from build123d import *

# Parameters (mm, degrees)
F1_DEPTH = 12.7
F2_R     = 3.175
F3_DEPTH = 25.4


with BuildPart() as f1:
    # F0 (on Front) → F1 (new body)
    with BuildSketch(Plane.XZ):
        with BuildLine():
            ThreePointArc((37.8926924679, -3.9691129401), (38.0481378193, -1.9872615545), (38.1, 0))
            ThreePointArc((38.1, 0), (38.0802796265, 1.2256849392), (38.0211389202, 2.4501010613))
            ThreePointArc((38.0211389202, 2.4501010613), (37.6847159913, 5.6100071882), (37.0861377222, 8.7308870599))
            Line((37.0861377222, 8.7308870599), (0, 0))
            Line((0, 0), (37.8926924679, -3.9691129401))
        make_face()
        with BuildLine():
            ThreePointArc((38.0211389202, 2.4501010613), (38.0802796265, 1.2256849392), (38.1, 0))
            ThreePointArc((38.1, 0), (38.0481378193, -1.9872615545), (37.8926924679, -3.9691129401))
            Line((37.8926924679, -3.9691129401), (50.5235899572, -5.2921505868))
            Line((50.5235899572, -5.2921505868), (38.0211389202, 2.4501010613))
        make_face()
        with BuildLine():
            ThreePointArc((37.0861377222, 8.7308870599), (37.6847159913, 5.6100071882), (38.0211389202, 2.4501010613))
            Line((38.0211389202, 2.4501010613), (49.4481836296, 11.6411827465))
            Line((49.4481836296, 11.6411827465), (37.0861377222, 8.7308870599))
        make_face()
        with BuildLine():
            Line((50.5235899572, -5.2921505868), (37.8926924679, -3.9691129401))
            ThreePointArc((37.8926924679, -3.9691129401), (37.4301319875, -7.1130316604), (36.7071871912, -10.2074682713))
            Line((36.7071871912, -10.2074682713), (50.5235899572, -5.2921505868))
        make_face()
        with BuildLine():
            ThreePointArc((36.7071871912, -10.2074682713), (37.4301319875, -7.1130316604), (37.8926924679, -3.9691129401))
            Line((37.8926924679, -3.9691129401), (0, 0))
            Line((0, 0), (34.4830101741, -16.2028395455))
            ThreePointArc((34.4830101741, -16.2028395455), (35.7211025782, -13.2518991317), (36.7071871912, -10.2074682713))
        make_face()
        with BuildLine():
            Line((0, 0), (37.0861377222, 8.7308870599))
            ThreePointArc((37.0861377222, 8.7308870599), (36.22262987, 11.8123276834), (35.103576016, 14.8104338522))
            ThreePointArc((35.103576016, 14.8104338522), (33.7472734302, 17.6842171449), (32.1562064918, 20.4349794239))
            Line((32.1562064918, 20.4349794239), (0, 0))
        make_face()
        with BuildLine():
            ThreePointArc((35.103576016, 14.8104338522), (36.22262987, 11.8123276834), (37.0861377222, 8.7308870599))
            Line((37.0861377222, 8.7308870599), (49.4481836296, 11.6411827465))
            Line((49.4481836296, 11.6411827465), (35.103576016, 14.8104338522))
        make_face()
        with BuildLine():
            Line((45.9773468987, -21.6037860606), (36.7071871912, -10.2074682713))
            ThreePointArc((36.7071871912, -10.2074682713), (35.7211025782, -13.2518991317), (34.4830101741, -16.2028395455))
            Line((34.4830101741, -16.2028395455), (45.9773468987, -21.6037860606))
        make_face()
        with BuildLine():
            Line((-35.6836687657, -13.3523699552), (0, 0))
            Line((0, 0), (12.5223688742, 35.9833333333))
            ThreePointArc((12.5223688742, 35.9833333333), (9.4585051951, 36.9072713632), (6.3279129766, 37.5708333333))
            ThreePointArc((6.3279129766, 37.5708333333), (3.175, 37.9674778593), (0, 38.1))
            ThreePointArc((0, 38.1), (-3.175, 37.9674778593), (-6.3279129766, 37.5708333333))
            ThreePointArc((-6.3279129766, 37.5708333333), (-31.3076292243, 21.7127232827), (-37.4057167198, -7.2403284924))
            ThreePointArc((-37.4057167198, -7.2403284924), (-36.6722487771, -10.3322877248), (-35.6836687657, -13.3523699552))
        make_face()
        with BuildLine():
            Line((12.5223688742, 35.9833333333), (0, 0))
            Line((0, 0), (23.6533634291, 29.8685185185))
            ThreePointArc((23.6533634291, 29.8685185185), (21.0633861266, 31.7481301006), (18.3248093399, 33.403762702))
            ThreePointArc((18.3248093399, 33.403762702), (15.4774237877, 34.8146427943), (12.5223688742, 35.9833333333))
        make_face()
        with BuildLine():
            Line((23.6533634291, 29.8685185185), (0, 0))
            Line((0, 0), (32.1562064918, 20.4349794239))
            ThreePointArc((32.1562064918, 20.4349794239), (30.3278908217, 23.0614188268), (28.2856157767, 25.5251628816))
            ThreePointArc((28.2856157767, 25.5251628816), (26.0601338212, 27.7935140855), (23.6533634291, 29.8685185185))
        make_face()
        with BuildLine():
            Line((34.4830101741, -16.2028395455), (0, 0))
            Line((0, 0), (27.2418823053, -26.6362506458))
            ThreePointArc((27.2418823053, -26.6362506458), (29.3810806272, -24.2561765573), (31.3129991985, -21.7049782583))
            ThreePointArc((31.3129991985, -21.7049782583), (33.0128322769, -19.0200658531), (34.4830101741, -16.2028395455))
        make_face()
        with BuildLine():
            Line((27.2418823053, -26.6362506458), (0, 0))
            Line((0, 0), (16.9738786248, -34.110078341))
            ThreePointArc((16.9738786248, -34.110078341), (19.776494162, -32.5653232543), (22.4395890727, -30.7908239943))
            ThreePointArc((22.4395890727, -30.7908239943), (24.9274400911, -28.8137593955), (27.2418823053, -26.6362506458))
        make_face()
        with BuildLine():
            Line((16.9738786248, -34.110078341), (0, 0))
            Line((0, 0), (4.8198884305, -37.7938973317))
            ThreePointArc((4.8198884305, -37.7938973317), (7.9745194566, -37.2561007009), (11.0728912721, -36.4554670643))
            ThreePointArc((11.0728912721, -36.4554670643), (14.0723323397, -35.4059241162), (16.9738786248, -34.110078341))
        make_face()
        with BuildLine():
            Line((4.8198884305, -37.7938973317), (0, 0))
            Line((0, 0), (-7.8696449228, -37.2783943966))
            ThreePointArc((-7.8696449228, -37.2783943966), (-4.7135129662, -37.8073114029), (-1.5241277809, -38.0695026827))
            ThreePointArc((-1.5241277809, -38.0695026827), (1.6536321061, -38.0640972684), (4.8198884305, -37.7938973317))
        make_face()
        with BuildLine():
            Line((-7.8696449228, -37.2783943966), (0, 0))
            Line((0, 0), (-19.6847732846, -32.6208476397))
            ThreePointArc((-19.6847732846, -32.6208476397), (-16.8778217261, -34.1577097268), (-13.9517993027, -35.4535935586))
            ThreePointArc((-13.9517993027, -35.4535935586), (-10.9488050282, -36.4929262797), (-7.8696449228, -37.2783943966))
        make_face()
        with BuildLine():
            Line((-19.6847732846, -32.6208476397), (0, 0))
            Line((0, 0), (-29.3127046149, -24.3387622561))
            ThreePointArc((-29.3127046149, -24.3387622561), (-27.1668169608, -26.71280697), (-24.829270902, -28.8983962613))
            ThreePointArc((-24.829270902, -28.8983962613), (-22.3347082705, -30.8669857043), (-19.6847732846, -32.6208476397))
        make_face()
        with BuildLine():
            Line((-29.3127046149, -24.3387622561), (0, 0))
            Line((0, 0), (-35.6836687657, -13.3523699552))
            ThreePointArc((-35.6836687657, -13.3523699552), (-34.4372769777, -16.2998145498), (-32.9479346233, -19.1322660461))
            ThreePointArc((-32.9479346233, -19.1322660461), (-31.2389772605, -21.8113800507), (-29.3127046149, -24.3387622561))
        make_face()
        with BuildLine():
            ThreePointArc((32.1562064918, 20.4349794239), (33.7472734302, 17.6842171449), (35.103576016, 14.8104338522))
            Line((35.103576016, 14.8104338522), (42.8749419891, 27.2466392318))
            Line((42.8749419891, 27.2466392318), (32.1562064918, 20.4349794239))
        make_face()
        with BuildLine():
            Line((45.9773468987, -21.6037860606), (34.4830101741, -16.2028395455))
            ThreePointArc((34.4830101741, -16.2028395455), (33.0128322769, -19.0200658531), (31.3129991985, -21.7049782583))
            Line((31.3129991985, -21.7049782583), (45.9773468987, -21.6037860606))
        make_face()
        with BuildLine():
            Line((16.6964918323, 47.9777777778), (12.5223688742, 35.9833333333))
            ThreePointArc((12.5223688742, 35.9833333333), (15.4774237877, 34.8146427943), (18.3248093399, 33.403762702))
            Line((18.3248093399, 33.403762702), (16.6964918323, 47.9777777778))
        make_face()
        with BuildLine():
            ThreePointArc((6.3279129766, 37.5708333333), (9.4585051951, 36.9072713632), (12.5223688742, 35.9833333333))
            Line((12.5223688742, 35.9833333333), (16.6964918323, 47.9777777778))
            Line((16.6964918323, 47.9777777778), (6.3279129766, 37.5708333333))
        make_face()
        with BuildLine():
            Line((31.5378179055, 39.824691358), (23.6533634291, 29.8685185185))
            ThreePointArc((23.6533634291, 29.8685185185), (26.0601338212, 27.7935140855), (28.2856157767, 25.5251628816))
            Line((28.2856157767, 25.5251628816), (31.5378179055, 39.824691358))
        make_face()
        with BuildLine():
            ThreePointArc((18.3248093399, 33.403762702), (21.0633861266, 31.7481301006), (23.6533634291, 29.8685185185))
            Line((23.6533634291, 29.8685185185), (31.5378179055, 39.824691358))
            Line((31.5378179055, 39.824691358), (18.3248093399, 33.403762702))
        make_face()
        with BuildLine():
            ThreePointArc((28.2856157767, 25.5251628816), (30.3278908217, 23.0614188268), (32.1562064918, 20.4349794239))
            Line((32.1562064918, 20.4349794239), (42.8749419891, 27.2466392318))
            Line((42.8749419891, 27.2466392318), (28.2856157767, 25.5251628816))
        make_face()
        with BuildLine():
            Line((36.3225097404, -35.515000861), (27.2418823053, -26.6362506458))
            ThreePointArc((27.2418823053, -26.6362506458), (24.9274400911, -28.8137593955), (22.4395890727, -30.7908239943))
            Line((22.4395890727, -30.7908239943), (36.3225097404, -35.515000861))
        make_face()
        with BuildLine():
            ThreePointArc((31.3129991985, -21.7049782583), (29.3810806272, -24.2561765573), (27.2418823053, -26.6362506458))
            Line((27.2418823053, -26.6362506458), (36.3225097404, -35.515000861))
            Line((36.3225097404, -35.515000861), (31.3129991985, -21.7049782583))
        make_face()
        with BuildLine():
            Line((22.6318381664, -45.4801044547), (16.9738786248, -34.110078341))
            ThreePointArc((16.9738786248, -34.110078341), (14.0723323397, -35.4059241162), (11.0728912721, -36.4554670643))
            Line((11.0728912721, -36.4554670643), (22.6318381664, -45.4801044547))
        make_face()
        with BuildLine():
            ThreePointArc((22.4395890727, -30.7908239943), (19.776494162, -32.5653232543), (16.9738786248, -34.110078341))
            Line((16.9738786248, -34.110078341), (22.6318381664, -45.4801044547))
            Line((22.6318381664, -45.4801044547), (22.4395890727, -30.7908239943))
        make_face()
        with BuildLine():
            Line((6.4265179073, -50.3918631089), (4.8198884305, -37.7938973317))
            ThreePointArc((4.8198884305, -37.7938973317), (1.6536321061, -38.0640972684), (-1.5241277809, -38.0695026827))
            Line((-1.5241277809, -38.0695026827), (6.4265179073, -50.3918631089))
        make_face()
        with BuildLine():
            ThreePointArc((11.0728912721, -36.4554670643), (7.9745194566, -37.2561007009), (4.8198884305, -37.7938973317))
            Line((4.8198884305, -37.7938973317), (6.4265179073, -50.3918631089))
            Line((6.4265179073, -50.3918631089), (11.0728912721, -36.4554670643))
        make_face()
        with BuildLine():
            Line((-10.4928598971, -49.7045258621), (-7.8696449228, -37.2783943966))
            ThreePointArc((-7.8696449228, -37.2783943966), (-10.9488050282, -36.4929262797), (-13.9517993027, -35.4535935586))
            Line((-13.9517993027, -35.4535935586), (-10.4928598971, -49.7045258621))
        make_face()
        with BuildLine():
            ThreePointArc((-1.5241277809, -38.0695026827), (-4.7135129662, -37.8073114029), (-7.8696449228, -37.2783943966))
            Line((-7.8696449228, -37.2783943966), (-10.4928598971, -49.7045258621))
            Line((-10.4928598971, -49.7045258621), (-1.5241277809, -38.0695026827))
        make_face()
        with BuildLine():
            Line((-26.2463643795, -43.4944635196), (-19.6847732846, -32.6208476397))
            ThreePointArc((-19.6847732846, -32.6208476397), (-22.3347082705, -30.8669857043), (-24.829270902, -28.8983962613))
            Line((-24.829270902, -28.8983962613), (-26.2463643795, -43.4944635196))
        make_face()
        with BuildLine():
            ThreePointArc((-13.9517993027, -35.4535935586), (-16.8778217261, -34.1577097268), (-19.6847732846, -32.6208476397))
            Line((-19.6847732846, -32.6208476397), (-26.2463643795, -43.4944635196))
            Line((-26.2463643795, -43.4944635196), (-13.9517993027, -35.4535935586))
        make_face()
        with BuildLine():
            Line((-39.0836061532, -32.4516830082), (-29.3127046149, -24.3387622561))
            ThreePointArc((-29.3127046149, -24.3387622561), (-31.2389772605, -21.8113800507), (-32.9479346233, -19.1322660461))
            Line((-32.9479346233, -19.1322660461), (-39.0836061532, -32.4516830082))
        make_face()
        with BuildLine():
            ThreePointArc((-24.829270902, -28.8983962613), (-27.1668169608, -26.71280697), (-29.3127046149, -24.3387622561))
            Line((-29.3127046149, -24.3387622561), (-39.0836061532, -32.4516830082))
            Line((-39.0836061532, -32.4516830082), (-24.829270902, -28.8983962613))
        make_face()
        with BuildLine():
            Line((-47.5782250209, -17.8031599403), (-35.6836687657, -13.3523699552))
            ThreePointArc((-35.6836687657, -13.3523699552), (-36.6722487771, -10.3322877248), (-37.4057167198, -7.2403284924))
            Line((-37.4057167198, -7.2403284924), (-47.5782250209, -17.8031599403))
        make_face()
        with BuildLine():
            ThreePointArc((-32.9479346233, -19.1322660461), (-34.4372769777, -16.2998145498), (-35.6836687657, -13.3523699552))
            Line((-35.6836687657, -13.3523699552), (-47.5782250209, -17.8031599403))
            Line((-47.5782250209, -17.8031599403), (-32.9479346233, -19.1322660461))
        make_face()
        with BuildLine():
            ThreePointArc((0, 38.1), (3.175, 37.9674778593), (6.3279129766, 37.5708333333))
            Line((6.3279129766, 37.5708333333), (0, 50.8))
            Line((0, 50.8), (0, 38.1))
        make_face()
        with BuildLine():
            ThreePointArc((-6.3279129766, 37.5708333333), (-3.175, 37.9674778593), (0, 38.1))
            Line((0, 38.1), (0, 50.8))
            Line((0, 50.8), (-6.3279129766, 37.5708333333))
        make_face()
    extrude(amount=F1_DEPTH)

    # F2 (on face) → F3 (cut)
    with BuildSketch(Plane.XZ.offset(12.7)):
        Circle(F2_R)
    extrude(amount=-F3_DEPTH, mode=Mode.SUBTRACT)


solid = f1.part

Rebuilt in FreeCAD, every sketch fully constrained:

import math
import FreeCAD as App
import Part
import Sketcher
Q = App.Units.Quantity

doc = App.newDocument("Part")
body = doc.addObject("PartDesign::Body", "Body")

# Sketch on XZ plane
sketch1 = body.newObject("Sketcher::SketchObject", "Sketch")
sketch1.AttachmentSupport = (doc.getObject("XZ_Plane"), [""])
sketch1.MapMode = "FlatFace"
sketch1.addGeometry([
    Part.LineSegment(App.Vector(45.977347, -21.603786, 0), App.Vector(36.707187, -10.207468, 0)),  # 0
    Part.LineSegment(App.Vector(36.707187, -10.207468, 0), App.Vector(50.52359, -5.292151, 0)),  # 1
    Part.LineSegment(App.Vector(50.52359, -5.292151, 0), App.Vector(38.021139, 2.450101, 0)),  # 2
    Part.LineSegment(App.Vector(38.021139, 2.450101, 0), App.Vector(49.448184, 11.641183, 0)),  # 3
    Part.LineSegment(App.Vector(49.448184, 11.641183, 0), App.Vector(35.103576, 14.810434, 0)),  # 4
    Part.LineSegment(App.Vector(35.103576, 14.810434, 0), App.Vector(42.874942, 27.246639, 0)),  # 5
    Part.LineSegment(App.Vector(42.874942, 27.246639, 0), App.Vector(28.285616, 25.525163, 0)),  # 6
    Part.LineSegment(App.Vector(28.285616, 25.525163, 0), App.Vector(31.537818, 39.824691, 0)),  # 7
    Part.LineSegment(App.Vector(31.537818, 39.824691, 0), App.Vector(18.324809, 33.403763, 0)),  # 8
    Part.LineSegment(App.Vector(18.324809, 33.403763, 0), App.Vector(16.696492, 47.977778, 0)),  # 9
    Part.LineSegment(App.Vector(16.696492, 47.977778, 0), App.Vector(6.327913, 37.570833, 0)),  # 10
    Part.LineSegment(App.Vector(6.327913, 37.570833, 0), App.Vector(0, 50.8, 0)),  # 11
    Part.LineSegment(App.Vector(0, 50.8, 0), App.Vector(-6.327913, 37.570833, 0)),  # 12
    Part.ArcOfCircle(Part.Circle(App.Vector(0, 0, 0), App.Vector(0, 0, 1), 38.1), math.radians(99.560384), math.radians(190.954819)),  # 13
    Part.LineSegment(App.Vector(-37.405717, -7.240328, 0), App.Vector(-47.578225, -17.80316, 0)),  # 14
    Part.LineSegment(App.Vector(-47.578225, -17.80316, 0), App.Vector(-32.947935, -19.132266, 0)),  # 15
    Part.LineSegment(App.Vector(-32.947935, -19.132266, 0), App.Vector(-39.083606, -32.451683, 0)),  # 16
    Part.LineSegment(App.Vector(-39.083606, -32.451683, 0), App.Vector(-24.829271, -28.898396, 0)),  # 17
    Part.LineSegment(App.Vector(-24.829271, -28.898396, 0), App.Vector(-26.246364, -43.494464, 0)),  # 18
    Part.LineSegment(App.Vector(-26.246364, -43.494464, 0), App.Vector(-13.951799, -35.453594, 0)),  # 19
    Part.LineSegment(App.Vector(-13.951799, -35.453594, 0), App.Vector(-10.49286, -49.704526, 0)),  # 20
    Part.LineSegment(App.Vector(-10.49286, -49.704526, 0), App.Vector(-1.524128, -38.069503, 0)),  # 21
    Part.LineSegment(App.Vector(-1.524128, -38.069503, 0), App.Vector(6.426518, -50.391863, 0)),  # 22
    Part.LineSegment(App.Vector(6.426518, -50.391863, 0), App.Vector(11.072891, -36.455467, 0)),  # 23
    Part.LineSegment(App.Vector(11.072891, -36.455467, 0), App.Vector(22.631838, -45.480104, 0)),  # 24
    Part.LineSegment(App.Vector(22.631838, -45.480104, 0), App.Vector(22.439589, -30.790824, 0)),  # 25
    Part.LineSegment(App.Vector(22.439589, -30.790824, 0), App.Vector(36.32251, -35.515001, 0)),  # 26
    Part.LineSegment(App.Vector(36.32251, -35.515001, 0), App.Vector(31.312999, -21.704978, 0)),  # 27
    Part.LineSegment(App.Vector(31.312999, -21.704978, 0), App.Vector(45.977347, -21.603786, 0)),  # 28
], False)
sketch1.addConstraint([
    Sketcher.Constraint("Coincident", 0, 2, 1, 1),
    Sketcher.Constraint("Coincident", 1, 2, 2, 1),
    Sketcher.Constraint("Coincident", 2, 2, 3, 1),
    Sketcher.Constraint("Coincident", 3, 2, 4, 1),
    Sketcher.Constraint("Coincident", 4, 2, 5, 1),
    Sketcher.Constraint("Coincident", 5, 2, 6, 1),
    Sketcher.Constraint("Coincident", 6, 2, 7, 1),
    Sketcher.Constraint("Coincident", 7, 2, 8, 1),
    Sketcher.Constraint("Coincident", 8, 2, 9, 1),
    Sketcher.Constraint("Coincident", 9, 2, 10, 1),
    Sketcher.Constraint("Coincident", 10, 2, 11, 1),
    Sketcher.Constraint("Coincident", 11, 2, 12, 1),
    Sketcher.Constraint("Coincident", 12, 2, 13, 1),
    Sketcher.Constraint("Coincident", 13, 2, 14, 1),
    Sketcher.Constraint("Coincident", 14, 2, 15, 1),
    Sketcher.Constraint("Coincident", 15, 2, 16, 1),
    Sketcher.Constraint("Coincident", 16, 2, 17, 1),
    Sketcher.Constraint("Coincident", 17, 2, 18, 1),
    Sketcher.Constraint("Coincident", 18, 2, 19, 1),
    Sketcher.Constraint("Coincident", 19, 2, 20, 1),
    Sketcher.Constraint("Coincident", 20, 2, 21, 1),
    Sketcher.Constraint("Coincident", 21, 2, 22, 1),
    Sketcher.Constraint("Coincident", 22, 2, 23, 1),
    Sketcher.Constraint("Coincident", 23, 2, 24, 1),
    Sketcher.Constraint("Coincident", 24, 2, 25, 1),
    Sketcher.Constraint("Coincident", 25, 2, 26, 1),
    Sketcher.Constraint("Coincident", 26, 2, 27, 1),
    Sketcher.Constraint("Coincident", 27, 2, 28, 1),
    Sketcher.Constraint("Coincident", 28, 2, 0, 1),
    Sketcher.Constraint("Coincident", 13, 3, -1, 1),
    Sketcher.Constraint("Symmetric", 10, 2, 12, 2, -2),
    Sketcher.Constraint("PointOnObject", 11, 2, -2),
    Sketcher.Constraint("Equal", 1, 3),
    Sketcher.Constraint("Equal", 0, 4),
    Sketcher.Constraint("Equal", 3, 5),
    Sketcher.Constraint("Equal", 4, 6),
    Sketcher.Constraint("Equal", 5, 7),
    Sketcher.Constraint("Equal", 6, 8),
    Sketcher.Constraint("Equal", 7, 9),
    Sketcher.Constraint("Equal", 8, 10),
    Sketcher.Constraint("Equal", 9, 11),
    Sketcher.Constraint("Equal", 12, 14),
    Sketcher.Constraint("Equal", 10, 15),
    Sketcher.Constraint("Equal", 14, 16),
    Sketcher.Constraint("Equal", 15, 17),
    Sketcher.Constraint("Equal", 16, 18),
    Sketcher.Constraint("Equal", 17, 19),
    Sketcher.Constraint("Equal", 18, 20),
    Sketcher.Constraint("Equal", 19, 21),
    Sketcher.Constraint("Equal", 20, 22),
    Sketcher.Constraint("Equal", 21, 23),
    Sketcher.Constraint("Equal", 22, 24),
    Sketcher.Constraint("Equal", 23, 25),
    Sketcher.Constraint("Equal", 24, 26),
    Sketcher.Constraint("Equal", 25, 27),
    Sketcher.Constraint("Equal", 26, 28),
    Sketcher.Constraint("Radius", 13, Q("1.5 in")),
    Sketcher.Constraint("DistanceY", -1, 1, 11, 2, Q("2 in")),
    Sketcher.Constraint("DistanceX", 10, 2, 4, 2, Q("1.1329001 in")),
    Sketcher.Constraint("DistanceX", 27, 2, 2, 2, Q("0.2641 in")),
    Sketcher.Constraint("DistanceY", -1, 1, 2, 2, 2.450101),
    Sketcher.Constraint("DistanceX", 19, 2, -1, 1, 13.951799),
    Sketcher.Constraint("DistanceY", 26, 2, -1, 1, 35.515001),
    Sketcher.Constraint("DistanceX", -1, 1, 27, 2, 31.312999),
    Sketcher.Constraint("DistanceY", 6, 2, 8, 2, 7.8786),
    Sketcher.Constraint("DistanceY", 4, 2, 10, 2, 22.760399),
    Sketcher.Constraint("DistanceY", 15, 2, 12, 2, 56.703099),
    Sketcher.Constraint("DistanceY", 22, 2, 18, 2, 6.8974),
    Sketcher.Constraint("DistanceY", 24, 2, 21, 2, 7.410602),
    Sketcher.Constraint("DistanceX", 20, 2, 24, 2, 33.124698),
    Sketcher.Constraint("DistanceX", 25, 2, 0, 2, 14.267598),
    Sketcher.Constraint("Distance", 0, 14.690538),
    Sketcher.Constraint("Distance", 2, 14.705568),
    Sketcher.Constraint("DistanceY", 0, 2, -1, 1, 10.207468),
    Sketcher.Constraint("DistanceX", -1, 1, 1, 2, 50.52359),
    Sketcher.Constraint("DistanceX", -1, 1, 5, 2, 42.874942),
    Sketcher.Constraint("DistanceY", -1, 1, 5, 2, 27.246639),
    Sketcher.Constraint("DistanceY", -1, 1, 7, 2, 39.824691),
    Sketcher.Constraint("DistanceX", -1, 1, 8, 2, 18.324809),
    Sketcher.Constraint("DistanceY", 13, 2, -1, 1, 7.240328),
    Sketcher.Constraint("DistanceY", 14, 2, -1, 1, 17.80316),
    Sketcher.Constraint("DistanceX", 17, 2, -1, 1, 24.829271),
    Sketcher.Constraint("DistanceX", 20, 2, -1, 1, 10.49286),
    Sketcher.Constraint("DistanceX", -1, 1, 23, 2, 11.072891),
    Sketcher.Constraint("DistanceX", -1, 1, 26, 2, 36.32251),
    Sketcher.Constraint("DistanceX", 16, 2, 15, 2, 6.135672),
])
pad1 = body.newObject("PartDesign::Pad", "Pad")
pad1.Profile = sketch1
pad1.Length = Q("0.5 in")

# Sketch on XZ plane
sketch2 = body.newObject("Sketcher::SketchObject", "Sketch001")
sketch2.AttachmentSupport = (doc.getObject("XZ_Plane"), [""])
sketch2.MapMode = "FlatFace"
sketch2.AttachmentOffset = App.Placement(App.Vector(0, 0, 0.5 * 25.4), App.Rotation())
sketch2.addGeometry(Part.Circle(App.Vector(0, 0, 0), App.Vector(0, 0, 1), 3.175), False)
sketch2.addConstraint([
    Sketcher.Constraint("Coincident", 0, 3, -1, 1),
    Sketcher.Constraint("Diameter", 0, Q("0.25 in")),
])
pocket1 = body.newObject("PartDesign::Pocket", "Pocket")
pocket1.Profile = sketch2
pocket1.Length = Q("1 in")

doc.recompute()
